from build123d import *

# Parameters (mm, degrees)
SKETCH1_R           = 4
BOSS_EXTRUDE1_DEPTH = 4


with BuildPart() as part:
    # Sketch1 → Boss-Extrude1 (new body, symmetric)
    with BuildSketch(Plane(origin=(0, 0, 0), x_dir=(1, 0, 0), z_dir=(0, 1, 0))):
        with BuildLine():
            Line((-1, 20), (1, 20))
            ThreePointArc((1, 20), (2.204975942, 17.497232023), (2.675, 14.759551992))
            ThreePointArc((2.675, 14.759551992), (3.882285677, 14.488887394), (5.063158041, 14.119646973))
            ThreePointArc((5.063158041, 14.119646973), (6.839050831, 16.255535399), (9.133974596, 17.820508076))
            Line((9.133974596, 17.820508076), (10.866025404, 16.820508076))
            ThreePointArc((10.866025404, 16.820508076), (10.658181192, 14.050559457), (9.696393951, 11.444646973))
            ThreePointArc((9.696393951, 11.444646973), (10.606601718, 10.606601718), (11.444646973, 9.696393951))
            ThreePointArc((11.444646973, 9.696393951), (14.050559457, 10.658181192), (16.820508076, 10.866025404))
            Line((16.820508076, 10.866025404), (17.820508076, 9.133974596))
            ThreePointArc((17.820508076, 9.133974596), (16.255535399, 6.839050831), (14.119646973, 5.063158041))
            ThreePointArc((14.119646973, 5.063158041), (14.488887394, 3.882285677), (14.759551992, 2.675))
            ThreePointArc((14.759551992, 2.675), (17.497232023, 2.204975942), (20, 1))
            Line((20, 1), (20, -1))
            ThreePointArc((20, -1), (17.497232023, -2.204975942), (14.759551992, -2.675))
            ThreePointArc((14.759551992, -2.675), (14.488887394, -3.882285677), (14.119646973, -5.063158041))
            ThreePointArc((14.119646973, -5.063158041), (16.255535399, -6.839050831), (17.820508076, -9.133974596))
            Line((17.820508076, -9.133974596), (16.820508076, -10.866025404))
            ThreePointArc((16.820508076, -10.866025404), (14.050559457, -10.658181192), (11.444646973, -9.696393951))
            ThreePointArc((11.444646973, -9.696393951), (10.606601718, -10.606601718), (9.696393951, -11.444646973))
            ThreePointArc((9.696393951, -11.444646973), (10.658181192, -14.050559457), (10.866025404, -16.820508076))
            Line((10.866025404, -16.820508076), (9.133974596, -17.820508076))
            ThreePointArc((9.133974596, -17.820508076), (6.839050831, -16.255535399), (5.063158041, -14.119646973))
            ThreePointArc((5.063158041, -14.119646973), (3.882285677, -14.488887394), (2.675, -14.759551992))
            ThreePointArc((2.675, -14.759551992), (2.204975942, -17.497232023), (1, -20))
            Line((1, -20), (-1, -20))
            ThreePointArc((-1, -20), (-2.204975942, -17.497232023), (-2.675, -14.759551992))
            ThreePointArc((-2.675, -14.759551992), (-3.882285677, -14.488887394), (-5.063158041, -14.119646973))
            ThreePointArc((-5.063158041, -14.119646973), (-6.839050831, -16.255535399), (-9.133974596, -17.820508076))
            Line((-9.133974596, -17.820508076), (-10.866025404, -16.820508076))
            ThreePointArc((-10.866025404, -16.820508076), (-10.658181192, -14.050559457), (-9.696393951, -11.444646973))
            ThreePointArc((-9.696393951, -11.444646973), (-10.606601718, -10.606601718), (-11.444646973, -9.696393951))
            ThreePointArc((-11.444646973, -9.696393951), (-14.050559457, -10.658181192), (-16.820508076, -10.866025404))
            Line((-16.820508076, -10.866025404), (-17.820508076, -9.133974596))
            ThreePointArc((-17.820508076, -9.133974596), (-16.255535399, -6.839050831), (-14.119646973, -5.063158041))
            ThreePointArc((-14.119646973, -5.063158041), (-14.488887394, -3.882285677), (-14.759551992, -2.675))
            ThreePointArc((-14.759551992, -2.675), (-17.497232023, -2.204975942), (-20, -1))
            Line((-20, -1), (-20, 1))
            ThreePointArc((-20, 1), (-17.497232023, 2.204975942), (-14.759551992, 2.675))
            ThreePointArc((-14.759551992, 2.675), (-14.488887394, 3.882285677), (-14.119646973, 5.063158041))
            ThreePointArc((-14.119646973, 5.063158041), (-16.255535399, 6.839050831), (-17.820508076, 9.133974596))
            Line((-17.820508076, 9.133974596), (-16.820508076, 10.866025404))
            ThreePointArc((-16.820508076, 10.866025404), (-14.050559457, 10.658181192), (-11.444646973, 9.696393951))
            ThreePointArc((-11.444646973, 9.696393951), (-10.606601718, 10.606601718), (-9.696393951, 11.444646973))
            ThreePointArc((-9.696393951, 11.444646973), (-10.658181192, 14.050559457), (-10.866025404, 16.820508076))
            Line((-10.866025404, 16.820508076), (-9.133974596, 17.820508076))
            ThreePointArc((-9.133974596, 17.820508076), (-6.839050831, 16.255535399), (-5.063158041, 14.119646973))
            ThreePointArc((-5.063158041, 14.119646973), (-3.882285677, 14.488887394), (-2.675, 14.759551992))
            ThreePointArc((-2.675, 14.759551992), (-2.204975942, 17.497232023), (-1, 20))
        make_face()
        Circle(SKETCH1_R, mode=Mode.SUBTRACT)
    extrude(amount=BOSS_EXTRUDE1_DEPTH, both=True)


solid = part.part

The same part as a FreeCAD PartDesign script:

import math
import FreeCAD as App
import Part
import Sketcher
from FreeCAD import Vector
Q = App.Units.Quantity

doc = App.newDocument("Part")
params = doc.addObject("Spreadsheet::Sheet", "Params")
for row, (alias, value) in enumerate([
    ("sketch1_diameter", "8 mm"),
    ("sketch1_radius", "10 mm"),
    ("sketch1_radius2", "15 mm"),
    ("sketch1_width", "2 mm"),
    ("sketch1_length", "2 mm"),
    ("pad1_length", "8 mm"),
], start=1):
    params.set(f"A{row}", alias)
    params.set(f"B{row}", "=" + value)
    params.setAlias(f"B{row}", alias)

body = doc.addObject("PartDesign::Body", "Body")

sketch1 = doc.addObject("Sketcher::SketchObject", "Sketch")
body.addObject(sketch1)
sketch1.AttachmentSupport = (doc.XZ_Plane, [""])
sketch1.MapMode = "FlatFace"
sketch1.addGeometry(Part.LineSegment(Vector(1, -20, 0), Vector(-1, -20, 0)), False)
sketch1.addGeometry(Part.ArcOfCircle(Part.Circle(Vector(7.3, -14.5, 0), Vector(0, 0, 1), 10), math.radians(-178), math.radians(-146)), False)
sketch1.addGeometry(Part.ArcOfCircle(Part.Circle(Vector(0, 0, 0), Vector(0, 0, 1), 15), math.radians(-109.73), math.radians(-100.27)), False)
sketch1.addGeometry(Part.ArcOfCircle(Part.Circle(Vector(-13.6, -8.9, 0), Vector(0, 0, 1), 10), math.radians(-64), math.radians(-32)), False)
sketch1.addGeometry(Part.LineSegment(Vector(-9.1, -17.8, 0), Vector(-10.9, -16.8, 0)), False)
sketch1.addGeometry(Part.ArcOfCircle(Part.Circle(Vector(-0.9, -16.2, 0), Vector(0, 0, 1), 10), math.radians(152), math.radians(184)), False)
sketch1.addGeometry(Part.ArcOfCircle(Part.Circle(Vector(0, 0, 0), Vector(0, 0, 1), 15), math.radians(-139.73), math.radians(-130.27)), False)
sketch1.addGeometry(Part.ArcOfCircle(Part.Circle(Vector(-16.2, -0.9, 0), Vector(0, 0, 1), 10), math.radians(-94), math.radians(-62)), False)
sketch1.addGeometry(Part.LineSegment(Vector(-16.8, -10.9, 0), Vector(-17.8, -9.1, 0)), False)
sketch1.addGeometry(Part.ArcOfCircle(Part.Circle(Vector(-8.9, -13.6, 0), Vector(0, 0, 1), 10), math.radians(122), math.radians(154)), False)
sketch1.addGeometry(Part.ArcOfCircle(Part.Circle(Vector(0, 0, 0), Vector(0, 0, 1), 15), math.radians(-169.73), math.radians(-160.27)), False)
sketch1.addGeometry(Part.ArcOfCircle(Part.Circle(Vector(-14.5, 7.3, 0), Vector(0, 0, 1), 10), math.radians(-124), math.radians(-92)), False)
sketch1.addGeometry(Part.LineSegment(Vector(-20, -1, 0), Vector(-20, 1, 0)), False)
sketch1.addGeometry(Part.ArcOfCircle(Part.Circle(Vector(-14.5, -7.3, 0), Vector(0, 0, 1), 10), math.radians(92), math.radians(124)), False)
sketch1.addGeometry(Part.ArcOfCircle(Part.Circle(Vector(0, 0, 0), Vector(0, 0, 1), 15), math.radians(160.27), math.radians(169.73)), False)
sketch1.addGeometry(Part.ArcOfCircle(Part.Circle(Vector(-8.9, 13.6, 0), Vector(0, 0, 1), 10), math.radians(-154), math.radians(-122)), False)
sketch1.addGeometry(Part.LineSegment(Vector(-17.8, 9.1, 0), Vector(-16.8, 10.9, 0)), False)
sketch1.addGeometry(Part.ArcOfCircle(Part.Circle(Vector(-16.2, 0.9, 0), Vector(0, 0, 1), 10), math.radians(62), math.radians(94)), False)
sketch1.addGeometry(Part.ArcOfCircle(Part.Circle(Vector(0, 0, 0), Vector(0, 0, 1), 15), math.radians(130.27), math.radians(139.73)), False)
sketch1.addGeometry(Part.ArcOfCircle(Part.Circle(Vector(-0.9, 16.2, 0), Vector(0, 0, 1), 10), math.radians(176), math.radians(208)), False)
sketch1.addGeometry(Part.LineSegment(Vector(-10.9, 16.8, 0), Vector(-9.1, 17.8, 0)), False)
sketch1.addGeometry(Part.ArcOfCircle(Part.Circle(Vector(-13.6, 8.9, 0), Vector(0, 0, 1), 10), math.radians(32), math.radians(64)), False)
sketch1.addGeometry(Part.ArcOfCircle(Part.Circle(Vector(0, 0, 0), Vector(0, 0, 1), 15), math.radians(100.27), math.radians(109.73)), False)
sketch1.addGeometry(Part.ArcOfCircle(Part.Circle(Vector(7.3, 14.5, 0), Vector(0, 0, 1), 10), math.radians(146), math.radians(178)), False)
sketch1.addGeometry(Part.LineSegment(Vector(-1, 20, 0), Vector(1, 20, 0)), False)
sketch1.addGeometry(Part.ArcOfCircle(Part.Circle(Vector(-7.3, 14.5, 0), Vector(0, 0, 1), 10), math.radians(2), math.radians(34)), False)
sketch1.addGeometry(Part.ArcOfCircle(Part.Circle(Vector(0, 0, 0), Vector(0, 0, 1), 15), math.radians(70.27), math.radians(79.73)), False)
sketch1.addGeometry(Part.ArcOfCircle(Part.Circle(Vector(13.6, 8.9, 0), Vector(0, 0, 1), 10), math.radians(116), math.radians(148)), False)
sketch1.addGeometry(Part.LineSegment(Vector(9.1, 17.8, 0), Vector(10.9, 16.8, 0)), False)
sketch1.addGeometry(Part.ArcOfCircle(Part.Circle(Vector(0.9, 16.2, 0), Vector(0, 0, 1), 10), math.radians(-28), math.radians(4)), False)
sketch1.addGeometry(Part.ArcOfCircle(Part.Circle(Vector(0, 0, 0), Vector(0, 0, 1), 15), math.radians(40.27), math.radians(49.73)), False)
sketch1.addGeometry(Part.ArcOfCircle(Part.Circle(Vector(16.2, 0.9, 0), Vector(0, 0, 1), 10), math.radians(86), math.radians(118)), False)
sketch1.addGeometry(Part.LineSegment(Vector(16.8, 10.9, 0), Vector(17.8, 9.1, 0)), False)
sketch1.addGeometry(Part.ArcOfCircle(Part.Circle(Vector(8.9, 13.6, 0), Vector(0, 0, 1), 10), math.radians(-58), math.radians(-26)), False)
sketch1.addGeometry(Part.ArcOfCircle(Part.Circle(Vector(0, 0, 0), Vector(0, 0, 1), 15), math.radians(10.27), math.radians(19.73)), False)
sketch1.addGeometry(Part.ArcOfCircle(Part.Circle(Vector(14.5, -7.3, 0), Vector(0, 0, 1), 10), math.radians(56), math.radians(88)), False)
sketch1.addGeometry(Part.LineSegment(Vector(20, 1, 0), Vector(20, -1, 0)), False)
sketch1.addGeometry(Part.ArcOfCircle(Part.Circle(Vector(14.5, 7.3, 0), Vector(0, 0, 1), 10), math.radians(-88), math.radians(-56)), False)
sketch1.addGeometry(Part.ArcOfCircle(Part.Circle(Vector(0, 0, 0), Vector(0, 0, 1), 15), math.radians(-19.73), math.radians(-10.27)), False)
sketch1.addGeometry(Part.ArcOfCircle(Part.Circle(Vector(8.9, -13.6, 0), Vector(0, 0, 1), 10), math.radians(26), math.radians(58)), False)
sketch1.addGeometry(Part.LineSegment(Vector(17.8, -9.1, 0), Vector(16.8, -10.9, 0)), False)
sketch1.addGeometry(Part.ArcOfCircle(Part.Circle(Vector(16.2, -0.9, 0), Vector(0, 0, 1), 10), math.radians(-118), math.radians(-86)), False)
sketch1.addGeometry(Part.ArcOfCircle(Part.Circle(Vector(0, 0, 0), Vector(0, 0, 1), 15), math.radians(-49.73), math.radians(-40.27)), False)
sketch1.addGeometry(Part.ArcOfCircle(Part.Circle(Vector(0.9, -16.2, 0), Vector(0, 0, 1), 10), math.radians(-4), math.radians(28)), False)
sketch1.addGeometry(Part.LineSegment(Vector(10.9, -16.8, 0), Vector(9.1, -17.8, 0)), False)
sketch1.addGeometry(Part.ArcOfCircle(Part.Circle(Vector(13.6, -8.9, 0), Vector(0, 0, 1), 10), math.radians(-148), math.radians(-116)), False)
sketch1.addGeometry(Part.ArcOfCircle(Part.Circle(Vector(0, 0, 0), Vector(0, 0, 1), 15), math.radians(-79.73), math.radians(-70.27)), False)
sketch1.addGeometry(Part.ArcOfCircle(Part.Circle(Vector(-7.3, -14.5, 0), Vector(0, 0, 1), 10), math.radians(-34), math.radians(-2)), False)
sketch1.addGeometry(Part.Circle(Vector(0, 0, 0), Vector(0, 0, 1), 4), False)
sketch1.addConstraint(Sketcher.Constraint("Coincident", 0, 2, 1, 2))
sketch1.addConstraint(Sketcher.Constraint("Coincident", 1, 1, 2, 2))
sketch1.addConstraint(Sketcher.Constraint("Coincident", 2, 1, 3, 2))
sketch1.addConstraint(Sketcher.Constraint("Coincident", 3, 1, 4, 1))
sketch1.addConstraint(Sketcher.Constraint("Coincident", 4, 2, 5, 2))
sketch1.addConstraint(Sketcher.Constraint("Coincident", 5, 1, 6, 2))
sketch1.addConstraint(Sketcher.Constraint("Coincident", 6, 1, 7, 2))
sketch1.addConstraint(Sketcher.Constraint("Coincident", 7, 1, 8, 1))
sketch1.addConstraint(Sketcher.Constraint("Coincident", 8, 2, 9, 2))
sketch1.addConstraint(Sketcher.Constraint("Coincident", 9, 1, 10, 2))
sketch1.addConstraint(Sketcher.Constraint("Coincident", 10, 1, 11, 2))
sketch1.addConstraint(Sketcher.Constraint("Coincident", 11, 1, 12, 1))
sketch1.addConstraint(Sketcher.Constraint("Coincident", 12, 2, 13, 2))
sketch1.addConstraint(Sketcher.Constraint("Coincident", 13, 1, 14, 2))
sketch1.addConstraint(Sketcher.Constraint("Coincident", 14, 1, 15, 2))
sketch1.addConstraint(Sketcher.Constraint("Coincident", 15, 1, 16, 1))
sketch1.addConstraint(Sketcher.Constraint("Coincident", 16, 2, 17, 2))
sketch1.addConstraint(Sketcher.Constraint("Coincident", 17, 1, 18, 2))
sketch1.addConstraint(Sketcher.Constraint("Coincident", 18, 1, 19, 2))
sketch1.addConstraint(Sketcher.Constraint("Coincident", 19, 1, 20, 1))
sketch1.addConstraint(Sketcher.Constraint("Coincident", 20, 2, 21, 2))
sketch1.addConstraint(Sketcher.Constraint("Coincident", 21, 1, 22, 2))
sketch1.addConstraint(Sketcher.Constraint("Coincident", 22, 1, 23, 2))
sketch1.addConstraint(Sketcher.Constraint("Coincident", 23, 1, 24, 1))
sketch1.addConstraint(Sketcher.Constraint("Coincident", 24, 2, 25, 2))
sketch1.addConstraint(Sketcher.Constraint("Coincident", 25, 1, 26, 2))
sketch1.addConstraint(Sketcher.Constraint("Coincident", 26, 1, 27, 2))
sketch1.addConstraint(Sketcher.Constraint("Coincident", 27, 1, 28, 1))
sketch1.addConstraint(Sketcher.Constraint("Coincident", 28, 2, 29, 2))
sketch1.addConstraint(Sketcher.Constraint("Coincident", 29, 1, 30, 2))
sketch1.addConstraint(Sketcher.Constraint("Coincident", 30, 1, 31, 2))
sketch1.addConstraint(Sketcher.Constraint("Coincident", 31, 1, 32, 1))
sketch1.addConstraint(Sketcher.Constraint("Coincident", 32, 2, 33, 2))
sketch1.addConstraint(Sketcher.Constraint("Coincident", 33, 1, 34, 2))
sketch1.addConstraint(Sketcher.Constraint("Coincident", 34, 1, 35, 2))
sketch1.addConstraint(Sketcher.Constraint("Coincident", 35, 1, 36, 1))
sketch1.addConstraint(Sketcher.Constraint("Coincident", 36, 2, 37, 2))
sketch1.addConstraint(Sketcher.Constraint("Coincident", 37, 1, 38, 2))
sketch1.addConstraint(Sketcher.Constraint("Coincident", 38, 1, 39, 2))
sketch1.addConstraint(Sketcher.Constraint("Coincident", 39, 1, 40, 1))
sketch1.addConstraint(Sketcher.Constraint("Coincident", 40, 2, 41, 2))
sketch1.addConstraint(Sketcher.Constraint("Coincident", 41, 1, 42, 2))
sketch1.addConstraint(Sketcher.Constraint("Coincident", 42, 1, 43, 2))
sketch1.addConstraint(Sketcher.Constraint("Coincident", 43, 1, 44, 1))
sketch1.addConstraint(Sketcher.Constraint("Coincident", 44, 2, 45, 2))
sketch1.addConstraint(Sketcher.Constraint("Coincident", 45, 1, 46, 2))
sketch1.addConstraint(Sketcher.Constraint("Coincident", 46, 1, 47, 2))
sketch1.addConstraint(Sketcher.Constraint("Coincident", 47, 1, 0, 1))
sketch1.addConstraint(Sketcher.Constraint("Horizontal", 0))
sketch1.addConstraint(Sketcher.Constraint("Vertical", 12))
sketch1.addConstraint(Sketcher.Constraint("Horizontal", 24))
sketch1.addConstraint(Sketcher.Constraint("Vertical", 36))
sketch1.addConstraint(Sketcher.Constraint("Coincident", 2, 3, -1, 1))
sketch1.addConstraint(Sketcher.Constraint("Coincident", 6, 3, -1, 1))
sketch1.addConstraint(Sketcher.Constraint("Coincident", 10, 3, -1, 1))
sketch1.addConstraint(Sketcher.Constraint("Coincident", 14, 3, -1, 1))
sketch1.addConstraint(Sketcher.Constraint("Coincident", 18, 3, -1, 1))
sketch1.addConstraint(Sketcher.Constraint("Coincident", 22, 3, -1, 1))
sketch1.addConstraint(Sketcher.Constraint("Coincident", 26, 3, -1, 1))
sketch1.addConstraint(Sketcher.Constraint("Coincident", 30, 3, -1, 1))
sketch1.addConstraint(Sketcher.Constraint("Coincident", 34, 3, -1, 1))
sketch1.addConstraint(Sketcher.Constraint("Coincident", 38, 3, -1, 1))
sketch1.addConstraint(Sketcher.Constraint("Coincident", 42, 3, -1, 1))
sketch1.addConstraint(Sketcher.Constraint("Coincident", 46, 3, -1, 1))
sketch1.addConstraint(Sketcher.Constraint("Coincident", 48, 3, -1, 1))
sketch1.addConstraint(Sketcher.Constraint("Equal", 1, 3))
sketch1.addConstraint(Sketcher.Constraint("Equal", 3, 5))
sketch1.addConstraint(Sketcher.Constraint("Equal", 2, 6))
sketch1.addConstraint(Sketcher.Constraint("Equal", 5, 7))
sketch1.addConstraint(Sketcher.Constraint("Equal", 7, 9))
sketch1.addConstraint(Sketcher.Constraint("Equal", 6, 10))
sketch1.addConstraint(Sketcher.Constraint("Equal", 9, 11))
sketch1.addConstraint(Sketcher.Constraint("Equal", 11, 13))
sketch1.addConstraint(Sketcher.Constraint("Equal", 10, 14))
sketch1.addConstraint(Sketcher.Constraint("Equal", 13, 15))
sketch1.addConstraint(Sketcher.Constraint("Equal", 15, 17))
sketch1.addConstraint(Sketcher.Constraint("Equal", 14, 18))
sketch1.addConstraint(Sketcher.Constraint("Equal", 17, 19))
sketch1.addConstraint(Sketcher.Constraint("Equal", 19, 21))
sketch1.addConstraint(Sketcher.Constraint("Equal", 18, 22))
sketch1.addConstraint(Sketcher.Constraint("Equal", 21, 23))
sketch1.addConstraint(Sketcher.Constraint("Equal", 23, 25))
sketch1.addConstraint(Sketcher.Constraint("Equal", 22, 26))
sketch1.addConstraint(Sketcher.Constraint("Equal", 25, 27))
sketch1.addConstraint(Sketcher.Constraint("Equal", 27, 29))
sketch1.addConstraint(Sketcher.Constraint("Equal", 26, 30))
sketch1.addConstraint(Sketcher.Constraint("Equal", 29, 31))
sketch1.addConstraint(Sketcher.Constraint("Equal", 31, 33))
sketch1.addConstraint(Sketcher.Constraint("Equal", 30, 34))
sketch1.addConstraint(Sketcher.Constraint("Equal", 33, 35))
sketch1.addConstraint(Sketcher.Constraint("Equal", 35, 37))
sketch1.addConstraint(Sketcher.Constraint("Equal", 34, 38))
sketch1.addConstraint(Sketcher.Constraint("Equal", 37, 39))
sketch1.addConstraint(Sketcher.Constraint("Equal", 39, 41))
sketch1.addConstraint(Sketcher.Constraint("Equal", 38, 42))
sketch1.addConstraint(Sketcher.Constraint("Equal", 41, 43))
sketch1.addConstraint(Sketcher.Constraint("Equal", 43, 45))
sketch1.addConstraint(Sketcher.Constraint("Equal", 42, 46))
sketch1.addConstraint(Sketcher.Constraint("Equal", 45, 47))
sketch1.addConstraint(Sketcher.Constraint("Symmetric", 1, 3, 25, 3, -1, 1))
sketch1.addConstraint(Sketcher.Constraint("Symmetric", 3, 3, 27, 3, -1, 1))
sketch1.addConstraint(Sketcher.Constraint("Symmetric", 5, 3, 29, 3, -1, 1))
sketch1.addConstraint(Sketcher.Constraint("Symmetric", 7, 3, 31, 3, -1, 1))
sketch1.addConstraint(Sketcher.Constraint("Symmetric", 9, 3, 33, 3, -1, 1))
sketch1.addConstraint(Sketcher.Constraint("Symmetric", 11, 3, 35, 3, -1, 1))
sketch1.addConstraint(Sketcher.Constraint("Symmetric", 13, 3, 37, 3, -1, 1))
sketch1.addConstraint(Sketcher.Constraint("Symmetric", 15, 3, 39, 3, -1, 1))
sketch1.addConstraint(Sketcher.Constraint("Symmetric", 17, 3, 41, 3, -1, 1))
sketch1.addConstraint(Sketcher.Constraint("Symmetric", 19, 3, 43, 3, -1, 1))
sketch1.addConstraint(Sketcher.Constraint("Symmetric", 21, 3, 45, 3, -1, 1))
sketch1.addConstraint(Sketcher.Constraint("Symmetric", 23, 3, 47, 3, -1, 1))
sketch1.addConstraint(Sketcher.Constraint("Symmetric", 23, 3, 25, 3, -2))
sketch1.addConstraint(Sketcher.Constraint("Symmetric", 21, 3, 27, 3, -2))
sketch1.addConstraint(Sketcher.Constraint("Symmetric", 19, 3, 29, 3, -2))
sketch1.addConstraint(Sketcher.Constraint("Symmetric", 17, 3, 31, 3, -2))
sketch1.addConstraint(Sketcher.Constraint("Symmetric", 15, 3, 33, 3, -2))
sketch1.addConstraint(Sketcher.Constraint("Symmetric", 13, 3, 35, 3, -2))
sketch1.addConstraint(Sketcher.Constraint("Perpendicular", 4, 16))
sketch1.addConstraint(Sketcher.Constraint("Perpendicular", 8, 20))
sketch1.addConstraint(Sketcher.Constraint("Perpendicular", 16, 28))
sketch1.addConstraint(Sketcher.Constraint("Perpendicular", 20, 32))
sketch1.addConstraint(Sketcher.Constraint("Perpendicular", 28, 40))
sketch1.addConstraint(Sketcher.Constraint("Perpendicular", 32, 44))
sketch1.addConstraint(Sketcher.Constraint("Horizontal", 20, 2, 27, 1))
sketch1.addConstraint(Sketcher.Constraint("Horizontal", 19, 1, 28, 2))
sketch1.addConstraint(Sketcher.Constraint("Horizontal", 16, 2, 31, 1))
sketch1.addConstraint(Sketcher.Constraint("Horizontal", 12, 2, 35, 1))
sketch1.addConstraint(Sketcher.Constraint("Horizontal", 8, 2, 39, 1))
sketch1.addConstraint(Sketcher.Constraint("Horizontal", 4, 2, 43, 1))
sketch1.addConstraint(Sketcher.Constraint("Vertical", 8, 2, 15, 1))
sketch1.addConstraint(Sketcher.Constraint("Vertical", 4, 2, 19, 1))
sketch1.addConstraint(Sketcher.Constraint("Vertical", 0, 2, 23, 1))
sketch1.addConstraint(Sketcher.Constraint("Equal", 24, 12))
sketch1.addConstraint(Sketcher.Constraint("Equal", 4, 8))
sketch1.addConstraint(Sketcher.Constraint("Diameter", 48, Q("8 mm")))
sketch1.addConstraint(Sketcher.Constraint("Radius", 1, Q("10 mm")))
sketch1.addConstraint(Sketcher.Constraint("Radius", 2, Q("15 mm")))
sketch1.addConstraint(Sketcher.Constraint("DistanceX", 0, 2, 0, 1, Q("2 mm")))
sketch1.addConstraint(Sketcher.Constraint("Angle", 4, Q("150 deg")))
sketch1.addConstraint(Sketcher.Constraint("Distance", 4, Q("2 mm")))
sketch1.addConstraint(Sketcher.Constraint("DistanceY", 0, 2, -1, 1, Q("20 mm")))
sketch1.addConstraint(Sketcher.Constraint("DistanceX", 11, 1, -1, 1, Q("20 mm")))
sketch1.addConstraint(Sketcher.Constraint("DistanceX", 1, 1, -1, 1, Q("2.675 mm")))
sketch1.addConstraint(Sketcher.Constraint("DistanceY", 10, 1, -1, 1, Q("2.675 mm")))
sketch1.addConstraint(Sketcher.Constraint("DistanceX", 2, 1, -1, 1, Q("5.063158 mm")))
sketch1.addConstraint(Sketcher.Constraint("DistanceY", 3, 1, -1, 1, Q("17.820508 mm")))
sketch1.addConstraint(Sketcher.Constraint("DistanceX", 7, 1, -1, 1, Q("16.820508 mm")))
sketch1.addConstraint(Sketcher.Constraint("DistanceY", 9, 1, -1, 1, Q("5.063158 mm")))
sketch1.addConstraint(Sketcher.Constraint("DistanceX", 3, 3, -1, 1, Q("13.565897 mm")))
sketch1.addConstraint(Sketcher.Constraint("DistanceX", 5, 3, -1, 1, Q("0.886782 mm")))
sketch1.addConstraint(Sketcher.Constraint("DistanceX", 7, 3, -1, 1, Q("16.176532 mm")))
sketch1.addConstraint(Sketcher.Constraint("DistanceY", 7, 3, -1, 1, Q("0.886782 mm")))
sketch1.setExpression("Constraints[134]", "Params.sketch1_diameter")
sketch1.setExpression("Constraints[135]", "Params.sketch1_radius")
sketch1.setExpression("Constraints[136]", "Params.sketch1_radius2")
sketch1.setExpression("Constraints[137]", "Params.sketch1_width")
sketch1.setExpression("Constraints[139]", "Params.sketch1_length")
pad1 = doc.addObject("PartDesign::Pad", "Pad")
body.addObject(pad1)
pad1.Profile = sketch1
pad1.setExpression("Length", "Params.pad1_length")
pad1.Midplane = True

doc.recompute()
